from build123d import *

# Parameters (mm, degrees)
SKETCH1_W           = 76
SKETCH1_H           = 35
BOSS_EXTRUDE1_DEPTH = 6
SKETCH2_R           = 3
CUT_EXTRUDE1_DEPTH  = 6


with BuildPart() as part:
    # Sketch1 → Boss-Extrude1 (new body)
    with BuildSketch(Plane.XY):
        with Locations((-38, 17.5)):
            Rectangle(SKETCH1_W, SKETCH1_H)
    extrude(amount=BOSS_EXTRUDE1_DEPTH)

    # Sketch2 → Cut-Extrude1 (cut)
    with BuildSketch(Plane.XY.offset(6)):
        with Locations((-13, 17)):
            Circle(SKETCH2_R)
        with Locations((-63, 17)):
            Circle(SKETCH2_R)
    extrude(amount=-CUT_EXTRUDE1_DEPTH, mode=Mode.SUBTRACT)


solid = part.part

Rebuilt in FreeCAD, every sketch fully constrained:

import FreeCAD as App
import Part
import Sketcher

V = App.Vector

doc = App.newDocument("Part")
body = doc.addObject("PartDesign::Body", "Body")

# Sketch on XY plane
sketch1 = body.newObject("Sketcher::SketchObject", "Sketch")
sketch1.AttachmentSupport = (doc.getObject("XY_Plane"), [""])
sketch1.MapMode = "FlatFace"
sketch1.addGeometry(Part.LineSegment(V(-76, 35, 0), V(-76, 0, 0)), False)
sketch1.addGeometry(Part.LineSegment(V(-76, 0, 0), V(0, 0, 0)), False)
sketch1.addGeometry(Part.LineSegment(V(0, 0, 0), V(0, 35, 0)), False)
sketch1.addGeometry(Part.LineSegment(V(0, 35, 0), V(-76, 35, 0)), False)
sketch1.addConstraint(Sketcher.Constraint("Coincident", 0, 2, 1, 1))
sketch1.addConstraint(Sketcher.Constraint("Coincident", 1, 2, 2, 1))
sketch1.addConstraint(Sketcher.Constraint("Coincident", 2, 2, 3, 1))
sketch1.addConstraint(Sketcher.Constraint("Coincident", 3, 2, 0, 1))
sketch1.addConstraint(Sketcher.Constraint("Vertical", 0))
sketch1.addConstraint(Sketcher.Constraint("Horizontal", 1))
sketch1.addConstraint(Sketcher.Constraint("Vertical", 2))
sketch1.addConstraint(Sketcher.Constraint("Horizontal", 3))
sketch1.addConstraint(Sketcher.Constraint("Coincident", 1, 2, -1, 1))
sketch1.addConstraint(Sketcher.Constraint("DistanceX", 1, 1, 1, 2, 76.0))
sketch1.addConstraint(Sketcher.Constraint("DistanceY", 0, 2, 0, 1, 35.0))
pad1 = body.newObject("PartDesign::Pad", "Pad")
pad1.Profile = sketch1
pad1.Length = 6

# Sketch on XY plane
sketch2 = body.newObject("Sketcher::SketchObject", "Sketch001")
sketch2.AttachmentSupport = (doc.getObject("XY_Plane"), [""])
sketch2.MapMode = "FlatFace"
sketch2.AttachmentOffset = App.Placement(V(0, 0, 6), App.Rotation())
sketch2.addGeometry(Part.Circle(V(-13, 17, 0), V(0, 0, 1), 3), False)
sketch2.addGeometry(Part.Circle(V(-63, 17, 0), V(0, 0, 1), 3), False)
sketch2.addConstraint(Sketcher.Constraint("Equal", 0, 1))
sketch2.addConstraint(Sketcher.Constraint("Horizontal", 0, 3, 1, 3))
sketch2.addConstraint(Sketcher.Constraint("Diameter", 0, 6.0))
sketch2.addConstraint(Sketcher.Constraint("DistanceX", 0, 3, -1, 1, 13.0))
sketch2.addConstraint(Sketcher.Constraint("DistanceY", -1, 1, 0, 3, 17.0))
sketch2.addConstraint(Sketcher.Constraint("DistanceX", 1, 3, -1, 1, 63.0))
pocket1 = body.newObject("PartDesign::Pocket", "Pocket")
pocket1.Profile = sketch2
pocket1.Length = 6

doc.recompute()
